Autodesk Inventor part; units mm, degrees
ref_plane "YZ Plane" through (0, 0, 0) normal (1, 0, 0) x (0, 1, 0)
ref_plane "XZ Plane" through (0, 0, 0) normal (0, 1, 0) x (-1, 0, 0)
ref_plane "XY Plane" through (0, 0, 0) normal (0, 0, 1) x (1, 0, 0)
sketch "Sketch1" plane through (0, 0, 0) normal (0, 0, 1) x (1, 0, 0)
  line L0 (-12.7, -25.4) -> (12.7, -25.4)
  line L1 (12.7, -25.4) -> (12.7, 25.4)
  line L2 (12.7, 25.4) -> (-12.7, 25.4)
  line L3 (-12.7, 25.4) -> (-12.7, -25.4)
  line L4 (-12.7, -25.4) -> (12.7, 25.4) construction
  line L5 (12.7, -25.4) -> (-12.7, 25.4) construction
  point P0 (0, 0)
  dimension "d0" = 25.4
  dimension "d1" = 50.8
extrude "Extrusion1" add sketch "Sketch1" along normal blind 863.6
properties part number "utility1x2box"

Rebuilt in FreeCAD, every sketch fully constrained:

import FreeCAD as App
import Part
import Sketcher
from FreeCAD import Vector
Q = App.Units.Quantity

doc = App.newDocument("Part")
body = doc.addObject("PartDesign::Body", "Body")

# Sketch on XY plane
sketch1 = doc.addObject("Sketcher::SketchObject", "Sketch")
body.addObject(sketch1)
sketch1.AttachmentSupport = (doc.XY_Plane, [""])
sketch1.MapMode = "FlatFace"
sketch1.addGeometry([
    Part.LineSegment(Vector(-13, 25, 0), Vector(-13, -25, 0)),
    Part.LineSegment(Vector(-13, -25, 0), Vector(13, -25, 0)),
    Part.LineSegment(Vector(13, -25, 0), Vector(13, 25, 0)),
    Part.LineSegment(Vector(13, 25, 0), Vector(-13, 25, 0)),
], False)
sketch1.addConstraint([
    Sketcher.Constraint("Coincident", 0, 2, 1, 1),
    Sketcher.Constraint("Coincident", 1, 2, 2, 1),
    Sketcher.Constraint("Coincident", 2, 2, 3, 1),
    Sketcher.Constraint("Coincident", 3, 2, 0, 1),
    Sketcher.Constraint("Vertical", 0),
    Sketcher.Constraint("Horizontal", 1),
    Sketcher.Constraint("Vertical", 2),
    Sketcher.Constraint("Horizontal", 3),
    Sketcher.Constraint("Symmetric", 0, 2, 2, 2, -1, 1),
    Sketcher.Constraint("DistanceX", 1, 1, 1, 2, Q("1 in")),
    Sketcher.Constraint("DistanceY", 0, 2, 0, 1, Q("2 in")),
])
pad1 = doc.addObject("PartDesign::Pad", "Pad")
body.addObject(pad1)
pad1.Profile = sketch1
pad1.Length = Q("34 in")

doc.recompute()
